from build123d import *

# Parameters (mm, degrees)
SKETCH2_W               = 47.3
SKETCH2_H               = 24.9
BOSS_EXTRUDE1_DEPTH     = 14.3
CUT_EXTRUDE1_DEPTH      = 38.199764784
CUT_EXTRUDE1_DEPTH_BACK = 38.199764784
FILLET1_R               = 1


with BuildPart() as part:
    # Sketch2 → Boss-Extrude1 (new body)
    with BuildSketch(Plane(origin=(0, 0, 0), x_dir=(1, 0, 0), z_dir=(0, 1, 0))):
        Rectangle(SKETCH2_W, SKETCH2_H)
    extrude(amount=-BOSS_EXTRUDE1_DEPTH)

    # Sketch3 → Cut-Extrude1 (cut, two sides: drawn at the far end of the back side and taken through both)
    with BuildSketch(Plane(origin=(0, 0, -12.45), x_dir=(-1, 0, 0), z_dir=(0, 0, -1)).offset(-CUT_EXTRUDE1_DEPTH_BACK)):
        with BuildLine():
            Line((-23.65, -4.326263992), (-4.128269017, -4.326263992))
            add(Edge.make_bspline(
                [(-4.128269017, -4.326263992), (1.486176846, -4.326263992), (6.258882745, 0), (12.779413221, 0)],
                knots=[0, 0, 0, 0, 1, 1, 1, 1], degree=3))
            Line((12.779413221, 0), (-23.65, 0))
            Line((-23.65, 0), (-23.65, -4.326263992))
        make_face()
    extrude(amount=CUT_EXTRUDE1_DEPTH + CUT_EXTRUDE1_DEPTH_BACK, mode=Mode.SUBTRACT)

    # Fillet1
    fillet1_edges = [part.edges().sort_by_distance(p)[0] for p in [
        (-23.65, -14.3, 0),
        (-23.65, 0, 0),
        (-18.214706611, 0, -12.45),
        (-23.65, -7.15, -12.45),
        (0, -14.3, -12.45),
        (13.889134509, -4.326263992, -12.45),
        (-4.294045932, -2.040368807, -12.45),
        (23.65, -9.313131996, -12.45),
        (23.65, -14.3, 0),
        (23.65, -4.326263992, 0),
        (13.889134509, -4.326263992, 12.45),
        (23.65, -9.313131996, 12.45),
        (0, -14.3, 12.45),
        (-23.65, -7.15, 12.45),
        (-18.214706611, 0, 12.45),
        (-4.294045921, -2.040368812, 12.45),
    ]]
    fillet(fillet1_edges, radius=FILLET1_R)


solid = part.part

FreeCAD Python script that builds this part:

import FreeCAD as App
import Part
import Sketcher
Q = App.Units.Quantity

doc = App.newDocument("Part")
body = doc.addObject("PartDesign::Body", "Body")

sketch1 = body.newObject("Sketcher::SketchObject", "Sketch")
sketch1.AttachmentSupport = (doc.getObject("XZ_Plane"), [""])
sketch1.MapMode = "FlatFace"
sketch1.addGeometry([
    Part.LineSegment(App.Vector(-23.65, -12.45, 0), App.Vector(-23.65, 12.45, 0)),
    Part.LineSegment(App.Vector(-23.65, 12.45, 0), App.Vector(23.65, 12.45, 0)),
    Part.LineSegment(App.Vector(23.65, 12.45, 0), App.Vector(23.65, -12.45, 0)),
    Part.LineSegment(App.Vector(23.65, -12.45, 0), App.Vector(-23.65, -12.45, 0)),
], False)
sketch1.addConstraint([
    Sketcher.Constraint("Coincident", 0, 2, 1, 1),
    Sketcher.Constraint("Coincident", 1, 2, 2, 1),
    Sketcher.Constraint("Coincident", 2, 2, 3, 1),
    Sketcher.Constraint("Coincident", 3, 2, 0, 1),
    Sketcher.Constraint("Vertical", 0),
    Sketcher.Constraint("Horizontal", 1),
    Sketcher.Constraint("Vertical", 2),
    Sketcher.Constraint("Horizontal", 3),
    Sketcher.Constraint("Symmetric", 0, 2, 2, 2, -1, 1),
    Sketcher.Constraint("DistanceX", 1, 1, 1, 2, Q("47.3 mm")),
    Sketcher.Constraint("DistanceY", 0, 1, 0, 2, Q("24.9 mm")),
])
pad1 = body.newObject("PartDesign::Pad", "Pad")
pad1.Profile = sketch1
pad1.Length = 14.3

sketch2 = body.newObject("Sketcher::SketchObject", "Sketch001")
sketch2.AttachmentSupport = (doc.getObject("XY_Plane"), [""])
sketch2.MapMode = "FlatFace"
sketch2.AttachmentOffset = App.Placement(App.Vector(0, 0, -12.45), App.Rotation())
sketch2.addGeometry([
    Part.LineSegment(App.Vector(23.65, -4.326264, 0), App.Vector(4.128269, -4.326264, 0)),
    Part.BSplineCurve([App.Vector(4.128269, -4.326264, 0), App.Vector(-1.486177, -4.326264, 0), App.Vector(-6.258883, 0, 0), App.Vector(-12.779413, 0, 0)], [4, 4], [0, 1], False, 3, [1, 1, 1, 1], False),
    Part.LineSegment(App.Vector(-12.779413, 0, 0), App.Vector(23.65, 0, 0)),
    Part.LineSegment(App.Vector(23.65, 0, 0), App.Vector(23.65, -4.326264, 0)),
], False)
sketch2.addConstraint([
    Sketcher.Constraint("Block", 1),
    Sketcher.Constraint("Coincident", 0, 2, 1, 1),
    Sketcher.Constraint("Coincident", 1, 2, 2, 1),
    Sketcher.Constraint("Coincident", 2, 2, 3, 1),
    Sketcher.Constraint("Coincident", 3, 2, 0, 1),
    Sketcher.Constraint("Horizontal", 0),
    Sketcher.Constraint("Horizontal", 2),
    Sketcher.Constraint("Vertical", 3),
    Sketcher.Constraint("DistanceX", -1, 1, 2, 2, Q("23.65 mm")),
])
pocket1 = body.newObject("PartDesign::Pocket", "Pocket")
pocket1.Profile = sketch2
pocket1.Type = "ThroughAll"
pocket1.Midplane = True
doc.recompute()

fillet = body.newObject("PartDesign::Fillet", "Fillet")
fillet.Base = (pocket1, ["Edge1"])
fillet.UseAllEdges = True
fillet.Radius = 1

doc.recompute()
